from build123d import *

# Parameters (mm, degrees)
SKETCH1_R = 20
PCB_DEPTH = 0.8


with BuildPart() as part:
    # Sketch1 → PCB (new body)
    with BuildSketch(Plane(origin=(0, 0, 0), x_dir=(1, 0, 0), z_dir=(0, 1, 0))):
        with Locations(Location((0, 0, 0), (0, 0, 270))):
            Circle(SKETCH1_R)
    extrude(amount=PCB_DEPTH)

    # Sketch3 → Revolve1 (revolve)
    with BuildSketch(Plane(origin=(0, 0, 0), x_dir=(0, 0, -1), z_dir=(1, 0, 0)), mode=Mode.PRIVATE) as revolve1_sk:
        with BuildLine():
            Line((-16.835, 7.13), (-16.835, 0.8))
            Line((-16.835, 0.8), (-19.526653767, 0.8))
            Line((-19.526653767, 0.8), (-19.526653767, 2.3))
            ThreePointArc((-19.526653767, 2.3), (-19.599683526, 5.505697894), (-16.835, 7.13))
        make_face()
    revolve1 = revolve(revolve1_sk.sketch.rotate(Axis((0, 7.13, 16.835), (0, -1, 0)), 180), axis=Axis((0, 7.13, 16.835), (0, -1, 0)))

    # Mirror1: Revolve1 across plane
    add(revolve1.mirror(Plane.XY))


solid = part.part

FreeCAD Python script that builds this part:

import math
import FreeCAD as App
import Part
import Sketcher

V = App.Vector

doc = App.newDocument("Part")
body = doc.addObject("PartDesign::Body", "Body")

# Sketch on XZ plane
sketch1 = body.newObject("Sketcher::SketchObject", "Sketch")
sketch1.AttachmentSupport = (doc.getObject("XZ_Plane"), [""])
sketch1.MapMode = "FlatFace"
sketch1.addGeometry(Part.Circle(V(0, 0, 0), V(0, 0, 1), 20), False)
sketch1.addConstraint([
    Sketcher.Constraint("Coincident", 0, 3, -1, 1),
    Sketcher.Constraint("Diameter", 0, 40.0),
])
pad1 = body.newObject("PartDesign::Pad", "Pad")
pad1.Profile = sketch1
pad1.Length = 0.8
pad1.Reversed = True

# Sketch on YZ plane
sketch2 = body.newObject("Sketcher::SketchObject", "Sketch001")
sketch2.AttachmentSupport = (doc.getObject("YZ_Plane"), [""])
sketch2.MapMode = "FlatFace"
sketch2.addGeometry([
    Part.LineSegment(V(0.8, 16.835, 0), V(7.13, 16.835, 0)),
    Part.ArcOfCircle(Part.Circle(V(3.965, 16.835, 0), V(0, 0, 1), 3.165), math.radians(0), math.radians(121.740057)),
    Part.LineSegment(V(2.3, 19.526654, 0), V(0.8, 19.526654, 0)),
    Part.LineSegment(V(0.8, 19.526654, 0), V(0.8, 16.835, 0)),
], False)
sketch2.addGeometry(Part.LineSegment(V(7.13, 16.835, 0), V(0.8, 16.835, 0)), True)  # axis
sketch2.addConstraint([
    Sketcher.Constraint("Coincident", 0, 2, 1, 1),
    Sketcher.Constraint("Coincident", 1, 2, 2, 1),
    Sketcher.Constraint("Coincident", 2, 2, 3, 1),
    Sketcher.Constraint("Coincident", 3, 2, 0, 1),
    Sketcher.Constraint("Horizontal", 0),
    Sketcher.Constraint("Horizontal", 2),
    Sketcher.Constraint("Vertical", 3),
    Sketcher.Constraint("Horizontal", 4),
    Sketcher.Constraint("Coincident", 4, 1, 0, 2),
    Sketcher.Constraint("Horizontal", 1, 3, 0, 2),
    Sketcher.Constraint("Vertical", 2, 2, 4, 2),
    Sketcher.Constraint("DistanceX", 2, 2, 2, 1, 1.5),
    Sketcher.Constraint("Radius", 1, 3.165),
    Sketcher.Constraint("DistanceX", 0, 1, 0, 2, 6.33),
    Sketcher.Constraint("DistanceX", -1, 1, 1, 2, 2.3),
    Sketcher.Constraint("DistanceY", -1, 1, 1, 3, 16.835),
])
revolution = body.newObject("PartDesign::Revolution", "Revolution")
revolution.Profile = sketch2
revolution.ReferenceAxis = (sketch2, ["Axis0"])
revolution.Angle = 360
doc.recompute()

mirrored = body.newObject("PartDesign::Mirrored", "Mirrored")
mirrored.Originals = [revolution]
mirrored.MirrorPlane = (doc.getObject("XY_Plane"), [""])
body.Tip = mirrored

doc.recompute()
